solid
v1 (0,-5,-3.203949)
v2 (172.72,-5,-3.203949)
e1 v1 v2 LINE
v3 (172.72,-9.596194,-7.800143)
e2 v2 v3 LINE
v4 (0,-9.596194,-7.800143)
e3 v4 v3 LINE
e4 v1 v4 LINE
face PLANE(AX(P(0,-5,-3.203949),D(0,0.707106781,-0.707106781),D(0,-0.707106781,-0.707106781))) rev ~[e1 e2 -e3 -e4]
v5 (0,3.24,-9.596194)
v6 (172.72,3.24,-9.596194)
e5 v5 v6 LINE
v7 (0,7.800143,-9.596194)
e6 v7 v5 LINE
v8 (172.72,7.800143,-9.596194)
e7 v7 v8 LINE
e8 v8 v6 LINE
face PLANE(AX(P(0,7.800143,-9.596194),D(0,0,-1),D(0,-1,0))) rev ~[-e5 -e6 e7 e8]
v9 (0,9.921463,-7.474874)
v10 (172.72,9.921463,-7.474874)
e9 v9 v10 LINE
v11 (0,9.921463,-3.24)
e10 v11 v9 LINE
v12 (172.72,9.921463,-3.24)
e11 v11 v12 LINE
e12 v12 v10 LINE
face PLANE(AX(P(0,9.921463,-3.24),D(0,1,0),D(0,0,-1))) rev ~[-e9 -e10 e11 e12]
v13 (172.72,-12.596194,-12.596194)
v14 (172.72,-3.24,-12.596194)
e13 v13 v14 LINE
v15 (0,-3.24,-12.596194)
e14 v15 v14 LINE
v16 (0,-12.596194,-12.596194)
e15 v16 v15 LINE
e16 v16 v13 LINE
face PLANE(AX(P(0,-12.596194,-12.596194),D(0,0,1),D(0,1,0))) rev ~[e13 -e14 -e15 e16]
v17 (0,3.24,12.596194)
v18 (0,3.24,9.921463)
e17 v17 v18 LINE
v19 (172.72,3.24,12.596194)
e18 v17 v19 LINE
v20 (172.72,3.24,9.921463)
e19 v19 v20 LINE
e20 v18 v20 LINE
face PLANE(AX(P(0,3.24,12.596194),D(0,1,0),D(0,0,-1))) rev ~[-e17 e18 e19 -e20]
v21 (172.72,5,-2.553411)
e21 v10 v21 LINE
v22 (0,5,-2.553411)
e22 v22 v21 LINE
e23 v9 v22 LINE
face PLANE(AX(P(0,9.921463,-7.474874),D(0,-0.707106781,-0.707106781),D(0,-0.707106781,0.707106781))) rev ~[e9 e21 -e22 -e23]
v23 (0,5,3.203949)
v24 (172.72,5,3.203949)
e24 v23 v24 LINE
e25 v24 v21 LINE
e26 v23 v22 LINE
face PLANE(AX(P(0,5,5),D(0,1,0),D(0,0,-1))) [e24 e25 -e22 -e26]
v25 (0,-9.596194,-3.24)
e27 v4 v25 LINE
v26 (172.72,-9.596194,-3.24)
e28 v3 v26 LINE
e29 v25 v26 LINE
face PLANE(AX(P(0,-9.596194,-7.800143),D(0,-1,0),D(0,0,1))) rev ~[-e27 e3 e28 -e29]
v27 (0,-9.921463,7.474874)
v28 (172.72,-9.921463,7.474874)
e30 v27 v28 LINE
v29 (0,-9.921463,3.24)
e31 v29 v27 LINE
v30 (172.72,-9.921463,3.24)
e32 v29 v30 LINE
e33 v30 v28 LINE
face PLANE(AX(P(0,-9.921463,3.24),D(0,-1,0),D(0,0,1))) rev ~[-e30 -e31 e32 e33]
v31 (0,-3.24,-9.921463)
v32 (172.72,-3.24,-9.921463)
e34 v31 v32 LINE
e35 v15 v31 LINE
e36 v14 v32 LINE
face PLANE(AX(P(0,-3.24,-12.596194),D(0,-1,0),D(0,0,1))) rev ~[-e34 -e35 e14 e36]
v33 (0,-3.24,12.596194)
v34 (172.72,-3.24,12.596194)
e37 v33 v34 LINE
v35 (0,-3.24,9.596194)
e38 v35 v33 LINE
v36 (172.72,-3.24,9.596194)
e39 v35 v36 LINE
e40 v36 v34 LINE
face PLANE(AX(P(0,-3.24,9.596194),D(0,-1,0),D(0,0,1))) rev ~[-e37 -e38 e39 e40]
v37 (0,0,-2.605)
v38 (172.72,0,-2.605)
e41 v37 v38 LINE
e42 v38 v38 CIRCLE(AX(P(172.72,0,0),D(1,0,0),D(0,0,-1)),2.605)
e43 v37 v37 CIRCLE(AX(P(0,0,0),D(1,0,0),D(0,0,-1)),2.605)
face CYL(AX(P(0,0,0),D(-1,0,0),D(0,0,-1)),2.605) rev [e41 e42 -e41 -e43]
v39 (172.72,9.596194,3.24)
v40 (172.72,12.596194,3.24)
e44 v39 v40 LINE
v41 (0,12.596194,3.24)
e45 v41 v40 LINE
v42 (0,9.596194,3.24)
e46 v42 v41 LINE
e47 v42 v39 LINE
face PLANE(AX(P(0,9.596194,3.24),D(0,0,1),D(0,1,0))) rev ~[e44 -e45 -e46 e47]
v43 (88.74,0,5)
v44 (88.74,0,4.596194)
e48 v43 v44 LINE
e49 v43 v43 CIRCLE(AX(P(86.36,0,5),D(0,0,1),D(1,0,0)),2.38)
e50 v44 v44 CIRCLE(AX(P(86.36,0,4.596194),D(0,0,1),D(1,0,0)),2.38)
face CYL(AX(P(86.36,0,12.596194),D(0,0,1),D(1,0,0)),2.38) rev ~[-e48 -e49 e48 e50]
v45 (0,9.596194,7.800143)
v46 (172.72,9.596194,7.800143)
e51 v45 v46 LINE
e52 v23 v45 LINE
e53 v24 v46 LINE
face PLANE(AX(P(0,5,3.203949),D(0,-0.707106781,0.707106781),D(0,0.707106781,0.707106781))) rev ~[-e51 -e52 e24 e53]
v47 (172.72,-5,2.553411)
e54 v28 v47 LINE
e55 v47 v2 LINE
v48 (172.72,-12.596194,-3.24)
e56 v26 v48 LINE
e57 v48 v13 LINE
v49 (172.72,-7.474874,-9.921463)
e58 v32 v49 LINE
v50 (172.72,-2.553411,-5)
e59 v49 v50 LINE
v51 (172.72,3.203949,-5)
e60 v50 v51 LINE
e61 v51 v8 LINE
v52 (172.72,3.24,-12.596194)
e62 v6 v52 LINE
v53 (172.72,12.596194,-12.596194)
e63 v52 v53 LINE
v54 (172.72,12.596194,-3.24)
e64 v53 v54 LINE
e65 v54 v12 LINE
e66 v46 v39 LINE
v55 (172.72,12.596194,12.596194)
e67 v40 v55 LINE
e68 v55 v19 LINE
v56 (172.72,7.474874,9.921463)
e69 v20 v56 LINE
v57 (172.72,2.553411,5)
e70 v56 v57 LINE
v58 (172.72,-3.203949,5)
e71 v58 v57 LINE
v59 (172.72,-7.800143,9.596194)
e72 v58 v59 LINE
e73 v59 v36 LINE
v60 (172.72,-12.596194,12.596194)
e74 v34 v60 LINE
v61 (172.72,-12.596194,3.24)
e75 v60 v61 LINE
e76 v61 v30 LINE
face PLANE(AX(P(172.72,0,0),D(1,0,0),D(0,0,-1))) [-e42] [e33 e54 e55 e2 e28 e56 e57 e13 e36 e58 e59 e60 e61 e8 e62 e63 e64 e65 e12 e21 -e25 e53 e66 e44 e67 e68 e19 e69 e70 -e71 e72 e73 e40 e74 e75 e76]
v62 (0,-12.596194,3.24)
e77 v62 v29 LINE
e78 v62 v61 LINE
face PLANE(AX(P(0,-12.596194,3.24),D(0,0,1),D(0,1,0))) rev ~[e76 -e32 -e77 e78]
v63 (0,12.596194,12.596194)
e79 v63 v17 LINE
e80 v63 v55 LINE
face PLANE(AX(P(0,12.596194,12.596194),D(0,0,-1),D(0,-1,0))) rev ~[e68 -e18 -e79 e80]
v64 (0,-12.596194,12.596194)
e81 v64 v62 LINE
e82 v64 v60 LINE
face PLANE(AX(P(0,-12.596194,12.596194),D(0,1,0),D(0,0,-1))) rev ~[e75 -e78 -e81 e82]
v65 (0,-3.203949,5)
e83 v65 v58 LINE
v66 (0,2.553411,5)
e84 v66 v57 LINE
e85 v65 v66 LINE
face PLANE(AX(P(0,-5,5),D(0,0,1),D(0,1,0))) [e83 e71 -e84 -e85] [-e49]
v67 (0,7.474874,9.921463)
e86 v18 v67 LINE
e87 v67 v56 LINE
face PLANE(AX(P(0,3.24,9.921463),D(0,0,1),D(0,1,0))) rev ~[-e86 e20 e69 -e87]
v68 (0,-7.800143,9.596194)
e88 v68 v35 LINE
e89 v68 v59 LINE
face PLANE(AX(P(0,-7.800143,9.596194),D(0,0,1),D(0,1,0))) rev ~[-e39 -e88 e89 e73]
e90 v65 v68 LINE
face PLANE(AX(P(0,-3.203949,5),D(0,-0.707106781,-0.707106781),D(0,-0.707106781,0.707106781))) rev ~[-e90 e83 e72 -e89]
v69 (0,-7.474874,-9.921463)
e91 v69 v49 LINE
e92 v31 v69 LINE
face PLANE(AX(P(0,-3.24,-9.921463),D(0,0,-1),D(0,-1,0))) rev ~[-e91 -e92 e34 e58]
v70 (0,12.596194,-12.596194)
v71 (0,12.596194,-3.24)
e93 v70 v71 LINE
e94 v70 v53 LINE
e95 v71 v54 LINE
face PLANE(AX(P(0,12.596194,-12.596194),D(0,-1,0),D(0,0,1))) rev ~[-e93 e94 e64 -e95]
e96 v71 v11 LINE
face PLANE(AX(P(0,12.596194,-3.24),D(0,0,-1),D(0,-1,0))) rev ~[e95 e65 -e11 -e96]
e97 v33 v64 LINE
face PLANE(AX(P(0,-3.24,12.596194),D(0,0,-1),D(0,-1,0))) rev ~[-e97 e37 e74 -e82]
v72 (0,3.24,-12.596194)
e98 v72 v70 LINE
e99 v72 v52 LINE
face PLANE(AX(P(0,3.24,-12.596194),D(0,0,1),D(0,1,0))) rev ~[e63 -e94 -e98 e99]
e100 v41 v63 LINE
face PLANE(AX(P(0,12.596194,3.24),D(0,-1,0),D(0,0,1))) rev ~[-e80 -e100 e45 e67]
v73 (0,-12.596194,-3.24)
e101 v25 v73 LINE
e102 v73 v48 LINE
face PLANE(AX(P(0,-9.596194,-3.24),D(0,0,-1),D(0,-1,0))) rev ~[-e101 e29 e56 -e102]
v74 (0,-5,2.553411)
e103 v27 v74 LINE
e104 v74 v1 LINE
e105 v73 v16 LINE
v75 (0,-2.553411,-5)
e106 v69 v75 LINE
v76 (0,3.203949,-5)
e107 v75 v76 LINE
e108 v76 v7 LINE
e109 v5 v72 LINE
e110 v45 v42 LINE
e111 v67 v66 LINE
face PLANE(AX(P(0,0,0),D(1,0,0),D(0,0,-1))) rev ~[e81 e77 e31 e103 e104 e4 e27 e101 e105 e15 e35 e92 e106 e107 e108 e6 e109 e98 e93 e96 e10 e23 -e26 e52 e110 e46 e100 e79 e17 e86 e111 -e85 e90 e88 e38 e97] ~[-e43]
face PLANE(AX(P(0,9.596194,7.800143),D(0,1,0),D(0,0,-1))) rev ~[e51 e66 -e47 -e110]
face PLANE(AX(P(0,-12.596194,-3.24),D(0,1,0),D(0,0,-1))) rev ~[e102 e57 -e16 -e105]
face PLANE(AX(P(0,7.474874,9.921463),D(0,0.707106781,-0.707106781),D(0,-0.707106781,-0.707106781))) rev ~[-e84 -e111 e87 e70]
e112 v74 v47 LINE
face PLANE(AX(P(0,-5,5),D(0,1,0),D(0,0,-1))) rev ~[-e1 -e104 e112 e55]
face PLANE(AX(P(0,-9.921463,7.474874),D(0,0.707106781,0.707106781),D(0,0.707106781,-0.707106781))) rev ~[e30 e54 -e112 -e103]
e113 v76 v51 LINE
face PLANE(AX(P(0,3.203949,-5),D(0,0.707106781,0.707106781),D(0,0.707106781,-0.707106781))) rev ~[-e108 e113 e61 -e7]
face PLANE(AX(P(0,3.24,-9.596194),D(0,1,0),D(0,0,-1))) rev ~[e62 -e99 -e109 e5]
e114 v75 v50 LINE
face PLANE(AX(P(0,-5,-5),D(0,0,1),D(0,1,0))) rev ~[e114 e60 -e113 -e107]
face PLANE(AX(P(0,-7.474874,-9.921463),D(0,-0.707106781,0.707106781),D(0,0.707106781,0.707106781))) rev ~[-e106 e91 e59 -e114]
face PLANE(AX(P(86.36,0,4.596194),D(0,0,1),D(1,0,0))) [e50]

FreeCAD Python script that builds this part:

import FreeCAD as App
import Part
import Sketcher
Q = App.Units.Quantity


def add_polygon(sketch, points):
    """Adds a closed chain of lines whose ends are joined by coincident constraints."""
    first, n = sketch.GeometryCount, len(points)
    for a, b in zip(points, points[1:] + points[:1]):
        sketch.addGeometry(Part.LineSegment(App.Vector(*a, 0), App.Vector(*b, 0)), False)
    for i in range(n):
        sketch.addConstraint(Sketcher.Constraint("Coincident", first + i, 2, first + (i + 1) % n, 1))

doc = App.newDocument("Part")
params = doc.addObject("Spreadsheet::Sheet", "Params")
for row, (alias, value) in enumerate([
    ("sketch1_diameter", "5.21 mm"),
    ("sketch1_width", "10 mm"),
    ("sketch1_height", "3 mm"),
    ("sketch1_length", "6.5 mm"),
    ("sketch1_length2", "6.96 mm"),
    ("pad1_length", "172.72 mm"),
    ("sketch2_diameter", "4.76 mm"),
    ("pocket1_length", "8 mm"),
], start=1):
    params.set(f"A{row}", alias)
    params.set(f"B{row}", "=" + value)
    params.setAlias(f"B{row}", alias)

body = doc.addObject("PartDesign::Body", "Body")

sketch1 = body.newObject("Sketcher::SketchObject", "Sketch")
sketch1.AttachmentSupport = (doc.getObject("YZ_Plane"), [""])
sketch1.MapMode = "FlatFace"
add_polygon(sketch1, [(5, 5), (-5, 5), (-5, -5), (3.2, -5), (7.8, -9.6), (3.2, -9.6), (3.2, -12.6), (12.6, -12.6), (12.6, -3.2), (9.9, -3.2), (9.9, -7.5), (5, -2.6)])
sketch1.addGeometry(Part.Circle(App.Vector(0, 0, 0), App.Vector(0, 0, 1), 2.6), False)
sketch1.addConstraint([
    Sketcher.Constraint("Horizontal", 0),
    Sketcher.Constraint("Vertical", 1),
    Sketcher.Constraint("Horizontal", 2),
    Sketcher.Constraint("Horizontal", 4),
    Sketcher.Constraint("Vertical", 5),
    Sketcher.Constraint("Horizontal", 6),
    Sketcher.Constraint("Vertical", 7),
    Sketcher.Constraint("Horizontal", 8),
    Sketcher.Constraint("Vertical", 9),
    Sketcher.Constraint("Vertical", 11),
    Sketcher.Constraint("Coincident", 12, 3, -1, 1),
    Sketcher.Constraint("Symmetric", 1, 2, 11, 2, -1, 1),
    Sketcher.Constraint("Parallel", 3, 10),
    Sketcher.Constraint("Equal", 0, 1),
    Sketcher.Constraint("Equal", 6, 7),
    Sketcher.Constraint("Diameter", 12, 5.21),
    Sketcher.Constraint("DistanceX", 0, 2, 0, 1, 10.0),
    Sketcher.Constraint("DistanceY", 5, 2, 5, 1, 3.0),
    Sketcher.Constraint("Angle", 3, Q("-45 deg")),
    Sketcher.Constraint("Distance", 3, 6.5),
    Sketcher.Constraint("Distance", 10, 6.96),
    Sketcher.Constraint("DistanceX", -1, 1, 4, 2, 3.24),
    Sketcher.Constraint("DistanceY", 7, 2, -1, 1, 3.24),
    Sketcher.Constraint("DistanceX", 2, 1, 2, 2, 8.203949),
    Sketcher.Constraint("DistanceY", 11, 1, 11, 2, 7.553411),
])
sketch1.setExpression("Constraints[27]", "Params.sketch1_diameter")
sketch1.setExpression("Constraints[28]", "Params.sketch1_width")
sketch1.setExpression("Constraints[29]", "Params.sketch1_height")
sketch1.setExpression("Constraints[31]", "Params.sketch1_length")
sketch1.setExpression("Constraints[32]", "Params.sketch1_length2")
pad1 = body.newObject("PartDesign::Pad", "Pad")
pad1.Profile = sketch1
pad1.setExpression("Length", "Params.pad1_length")
doc.recompute()

polarpattern = body.newObject("PartDesign::PolarPattern", "PolarPattern")
polarpattern.Originals = [pad1]
polarpattern.Axis = (doc.getObject("X_Axis"), [""])
polarpattern.Angle = 360
polarpattern.Occurrences = 4
body.Tip = polarpattern

sketch2 = body.newObject("Sketcher::SketchObject", "Sketch001")
sketch2.AttachmentSupport = (doc.getObject("XY_Plane"), [""])
sketch2.MapMode = "FlatFace"
sketch2.AttachmentOffset = App.Placement(App.Vector(0, 0, 12.596194), App.Rotation())
sketch2.addGeometry(Part.Circle(App.Vector(86.4, 0, 0), App.Vector(0, 0, 1), 2.4), False)
sketch2.addConstraint([
    Sketcher.Constraint("PointOnObject", 0, 3, -1),
    Sketcher.Constraint("Diameter", 0, 4.76),
    Sketcher.Constraint("DistanceX", -1, 1, 0, 3, 86.36),
])
sketch2.setExpression("Constraints[1]", "Params.sketch2_diameter")
pocket1 = body.newObject("PartDesign::Pocket", "Pocket")
pocket1.Profile = sketch2
pocket1.setExpression("Length", "Params.pocket1_length")

doc.recompute()
